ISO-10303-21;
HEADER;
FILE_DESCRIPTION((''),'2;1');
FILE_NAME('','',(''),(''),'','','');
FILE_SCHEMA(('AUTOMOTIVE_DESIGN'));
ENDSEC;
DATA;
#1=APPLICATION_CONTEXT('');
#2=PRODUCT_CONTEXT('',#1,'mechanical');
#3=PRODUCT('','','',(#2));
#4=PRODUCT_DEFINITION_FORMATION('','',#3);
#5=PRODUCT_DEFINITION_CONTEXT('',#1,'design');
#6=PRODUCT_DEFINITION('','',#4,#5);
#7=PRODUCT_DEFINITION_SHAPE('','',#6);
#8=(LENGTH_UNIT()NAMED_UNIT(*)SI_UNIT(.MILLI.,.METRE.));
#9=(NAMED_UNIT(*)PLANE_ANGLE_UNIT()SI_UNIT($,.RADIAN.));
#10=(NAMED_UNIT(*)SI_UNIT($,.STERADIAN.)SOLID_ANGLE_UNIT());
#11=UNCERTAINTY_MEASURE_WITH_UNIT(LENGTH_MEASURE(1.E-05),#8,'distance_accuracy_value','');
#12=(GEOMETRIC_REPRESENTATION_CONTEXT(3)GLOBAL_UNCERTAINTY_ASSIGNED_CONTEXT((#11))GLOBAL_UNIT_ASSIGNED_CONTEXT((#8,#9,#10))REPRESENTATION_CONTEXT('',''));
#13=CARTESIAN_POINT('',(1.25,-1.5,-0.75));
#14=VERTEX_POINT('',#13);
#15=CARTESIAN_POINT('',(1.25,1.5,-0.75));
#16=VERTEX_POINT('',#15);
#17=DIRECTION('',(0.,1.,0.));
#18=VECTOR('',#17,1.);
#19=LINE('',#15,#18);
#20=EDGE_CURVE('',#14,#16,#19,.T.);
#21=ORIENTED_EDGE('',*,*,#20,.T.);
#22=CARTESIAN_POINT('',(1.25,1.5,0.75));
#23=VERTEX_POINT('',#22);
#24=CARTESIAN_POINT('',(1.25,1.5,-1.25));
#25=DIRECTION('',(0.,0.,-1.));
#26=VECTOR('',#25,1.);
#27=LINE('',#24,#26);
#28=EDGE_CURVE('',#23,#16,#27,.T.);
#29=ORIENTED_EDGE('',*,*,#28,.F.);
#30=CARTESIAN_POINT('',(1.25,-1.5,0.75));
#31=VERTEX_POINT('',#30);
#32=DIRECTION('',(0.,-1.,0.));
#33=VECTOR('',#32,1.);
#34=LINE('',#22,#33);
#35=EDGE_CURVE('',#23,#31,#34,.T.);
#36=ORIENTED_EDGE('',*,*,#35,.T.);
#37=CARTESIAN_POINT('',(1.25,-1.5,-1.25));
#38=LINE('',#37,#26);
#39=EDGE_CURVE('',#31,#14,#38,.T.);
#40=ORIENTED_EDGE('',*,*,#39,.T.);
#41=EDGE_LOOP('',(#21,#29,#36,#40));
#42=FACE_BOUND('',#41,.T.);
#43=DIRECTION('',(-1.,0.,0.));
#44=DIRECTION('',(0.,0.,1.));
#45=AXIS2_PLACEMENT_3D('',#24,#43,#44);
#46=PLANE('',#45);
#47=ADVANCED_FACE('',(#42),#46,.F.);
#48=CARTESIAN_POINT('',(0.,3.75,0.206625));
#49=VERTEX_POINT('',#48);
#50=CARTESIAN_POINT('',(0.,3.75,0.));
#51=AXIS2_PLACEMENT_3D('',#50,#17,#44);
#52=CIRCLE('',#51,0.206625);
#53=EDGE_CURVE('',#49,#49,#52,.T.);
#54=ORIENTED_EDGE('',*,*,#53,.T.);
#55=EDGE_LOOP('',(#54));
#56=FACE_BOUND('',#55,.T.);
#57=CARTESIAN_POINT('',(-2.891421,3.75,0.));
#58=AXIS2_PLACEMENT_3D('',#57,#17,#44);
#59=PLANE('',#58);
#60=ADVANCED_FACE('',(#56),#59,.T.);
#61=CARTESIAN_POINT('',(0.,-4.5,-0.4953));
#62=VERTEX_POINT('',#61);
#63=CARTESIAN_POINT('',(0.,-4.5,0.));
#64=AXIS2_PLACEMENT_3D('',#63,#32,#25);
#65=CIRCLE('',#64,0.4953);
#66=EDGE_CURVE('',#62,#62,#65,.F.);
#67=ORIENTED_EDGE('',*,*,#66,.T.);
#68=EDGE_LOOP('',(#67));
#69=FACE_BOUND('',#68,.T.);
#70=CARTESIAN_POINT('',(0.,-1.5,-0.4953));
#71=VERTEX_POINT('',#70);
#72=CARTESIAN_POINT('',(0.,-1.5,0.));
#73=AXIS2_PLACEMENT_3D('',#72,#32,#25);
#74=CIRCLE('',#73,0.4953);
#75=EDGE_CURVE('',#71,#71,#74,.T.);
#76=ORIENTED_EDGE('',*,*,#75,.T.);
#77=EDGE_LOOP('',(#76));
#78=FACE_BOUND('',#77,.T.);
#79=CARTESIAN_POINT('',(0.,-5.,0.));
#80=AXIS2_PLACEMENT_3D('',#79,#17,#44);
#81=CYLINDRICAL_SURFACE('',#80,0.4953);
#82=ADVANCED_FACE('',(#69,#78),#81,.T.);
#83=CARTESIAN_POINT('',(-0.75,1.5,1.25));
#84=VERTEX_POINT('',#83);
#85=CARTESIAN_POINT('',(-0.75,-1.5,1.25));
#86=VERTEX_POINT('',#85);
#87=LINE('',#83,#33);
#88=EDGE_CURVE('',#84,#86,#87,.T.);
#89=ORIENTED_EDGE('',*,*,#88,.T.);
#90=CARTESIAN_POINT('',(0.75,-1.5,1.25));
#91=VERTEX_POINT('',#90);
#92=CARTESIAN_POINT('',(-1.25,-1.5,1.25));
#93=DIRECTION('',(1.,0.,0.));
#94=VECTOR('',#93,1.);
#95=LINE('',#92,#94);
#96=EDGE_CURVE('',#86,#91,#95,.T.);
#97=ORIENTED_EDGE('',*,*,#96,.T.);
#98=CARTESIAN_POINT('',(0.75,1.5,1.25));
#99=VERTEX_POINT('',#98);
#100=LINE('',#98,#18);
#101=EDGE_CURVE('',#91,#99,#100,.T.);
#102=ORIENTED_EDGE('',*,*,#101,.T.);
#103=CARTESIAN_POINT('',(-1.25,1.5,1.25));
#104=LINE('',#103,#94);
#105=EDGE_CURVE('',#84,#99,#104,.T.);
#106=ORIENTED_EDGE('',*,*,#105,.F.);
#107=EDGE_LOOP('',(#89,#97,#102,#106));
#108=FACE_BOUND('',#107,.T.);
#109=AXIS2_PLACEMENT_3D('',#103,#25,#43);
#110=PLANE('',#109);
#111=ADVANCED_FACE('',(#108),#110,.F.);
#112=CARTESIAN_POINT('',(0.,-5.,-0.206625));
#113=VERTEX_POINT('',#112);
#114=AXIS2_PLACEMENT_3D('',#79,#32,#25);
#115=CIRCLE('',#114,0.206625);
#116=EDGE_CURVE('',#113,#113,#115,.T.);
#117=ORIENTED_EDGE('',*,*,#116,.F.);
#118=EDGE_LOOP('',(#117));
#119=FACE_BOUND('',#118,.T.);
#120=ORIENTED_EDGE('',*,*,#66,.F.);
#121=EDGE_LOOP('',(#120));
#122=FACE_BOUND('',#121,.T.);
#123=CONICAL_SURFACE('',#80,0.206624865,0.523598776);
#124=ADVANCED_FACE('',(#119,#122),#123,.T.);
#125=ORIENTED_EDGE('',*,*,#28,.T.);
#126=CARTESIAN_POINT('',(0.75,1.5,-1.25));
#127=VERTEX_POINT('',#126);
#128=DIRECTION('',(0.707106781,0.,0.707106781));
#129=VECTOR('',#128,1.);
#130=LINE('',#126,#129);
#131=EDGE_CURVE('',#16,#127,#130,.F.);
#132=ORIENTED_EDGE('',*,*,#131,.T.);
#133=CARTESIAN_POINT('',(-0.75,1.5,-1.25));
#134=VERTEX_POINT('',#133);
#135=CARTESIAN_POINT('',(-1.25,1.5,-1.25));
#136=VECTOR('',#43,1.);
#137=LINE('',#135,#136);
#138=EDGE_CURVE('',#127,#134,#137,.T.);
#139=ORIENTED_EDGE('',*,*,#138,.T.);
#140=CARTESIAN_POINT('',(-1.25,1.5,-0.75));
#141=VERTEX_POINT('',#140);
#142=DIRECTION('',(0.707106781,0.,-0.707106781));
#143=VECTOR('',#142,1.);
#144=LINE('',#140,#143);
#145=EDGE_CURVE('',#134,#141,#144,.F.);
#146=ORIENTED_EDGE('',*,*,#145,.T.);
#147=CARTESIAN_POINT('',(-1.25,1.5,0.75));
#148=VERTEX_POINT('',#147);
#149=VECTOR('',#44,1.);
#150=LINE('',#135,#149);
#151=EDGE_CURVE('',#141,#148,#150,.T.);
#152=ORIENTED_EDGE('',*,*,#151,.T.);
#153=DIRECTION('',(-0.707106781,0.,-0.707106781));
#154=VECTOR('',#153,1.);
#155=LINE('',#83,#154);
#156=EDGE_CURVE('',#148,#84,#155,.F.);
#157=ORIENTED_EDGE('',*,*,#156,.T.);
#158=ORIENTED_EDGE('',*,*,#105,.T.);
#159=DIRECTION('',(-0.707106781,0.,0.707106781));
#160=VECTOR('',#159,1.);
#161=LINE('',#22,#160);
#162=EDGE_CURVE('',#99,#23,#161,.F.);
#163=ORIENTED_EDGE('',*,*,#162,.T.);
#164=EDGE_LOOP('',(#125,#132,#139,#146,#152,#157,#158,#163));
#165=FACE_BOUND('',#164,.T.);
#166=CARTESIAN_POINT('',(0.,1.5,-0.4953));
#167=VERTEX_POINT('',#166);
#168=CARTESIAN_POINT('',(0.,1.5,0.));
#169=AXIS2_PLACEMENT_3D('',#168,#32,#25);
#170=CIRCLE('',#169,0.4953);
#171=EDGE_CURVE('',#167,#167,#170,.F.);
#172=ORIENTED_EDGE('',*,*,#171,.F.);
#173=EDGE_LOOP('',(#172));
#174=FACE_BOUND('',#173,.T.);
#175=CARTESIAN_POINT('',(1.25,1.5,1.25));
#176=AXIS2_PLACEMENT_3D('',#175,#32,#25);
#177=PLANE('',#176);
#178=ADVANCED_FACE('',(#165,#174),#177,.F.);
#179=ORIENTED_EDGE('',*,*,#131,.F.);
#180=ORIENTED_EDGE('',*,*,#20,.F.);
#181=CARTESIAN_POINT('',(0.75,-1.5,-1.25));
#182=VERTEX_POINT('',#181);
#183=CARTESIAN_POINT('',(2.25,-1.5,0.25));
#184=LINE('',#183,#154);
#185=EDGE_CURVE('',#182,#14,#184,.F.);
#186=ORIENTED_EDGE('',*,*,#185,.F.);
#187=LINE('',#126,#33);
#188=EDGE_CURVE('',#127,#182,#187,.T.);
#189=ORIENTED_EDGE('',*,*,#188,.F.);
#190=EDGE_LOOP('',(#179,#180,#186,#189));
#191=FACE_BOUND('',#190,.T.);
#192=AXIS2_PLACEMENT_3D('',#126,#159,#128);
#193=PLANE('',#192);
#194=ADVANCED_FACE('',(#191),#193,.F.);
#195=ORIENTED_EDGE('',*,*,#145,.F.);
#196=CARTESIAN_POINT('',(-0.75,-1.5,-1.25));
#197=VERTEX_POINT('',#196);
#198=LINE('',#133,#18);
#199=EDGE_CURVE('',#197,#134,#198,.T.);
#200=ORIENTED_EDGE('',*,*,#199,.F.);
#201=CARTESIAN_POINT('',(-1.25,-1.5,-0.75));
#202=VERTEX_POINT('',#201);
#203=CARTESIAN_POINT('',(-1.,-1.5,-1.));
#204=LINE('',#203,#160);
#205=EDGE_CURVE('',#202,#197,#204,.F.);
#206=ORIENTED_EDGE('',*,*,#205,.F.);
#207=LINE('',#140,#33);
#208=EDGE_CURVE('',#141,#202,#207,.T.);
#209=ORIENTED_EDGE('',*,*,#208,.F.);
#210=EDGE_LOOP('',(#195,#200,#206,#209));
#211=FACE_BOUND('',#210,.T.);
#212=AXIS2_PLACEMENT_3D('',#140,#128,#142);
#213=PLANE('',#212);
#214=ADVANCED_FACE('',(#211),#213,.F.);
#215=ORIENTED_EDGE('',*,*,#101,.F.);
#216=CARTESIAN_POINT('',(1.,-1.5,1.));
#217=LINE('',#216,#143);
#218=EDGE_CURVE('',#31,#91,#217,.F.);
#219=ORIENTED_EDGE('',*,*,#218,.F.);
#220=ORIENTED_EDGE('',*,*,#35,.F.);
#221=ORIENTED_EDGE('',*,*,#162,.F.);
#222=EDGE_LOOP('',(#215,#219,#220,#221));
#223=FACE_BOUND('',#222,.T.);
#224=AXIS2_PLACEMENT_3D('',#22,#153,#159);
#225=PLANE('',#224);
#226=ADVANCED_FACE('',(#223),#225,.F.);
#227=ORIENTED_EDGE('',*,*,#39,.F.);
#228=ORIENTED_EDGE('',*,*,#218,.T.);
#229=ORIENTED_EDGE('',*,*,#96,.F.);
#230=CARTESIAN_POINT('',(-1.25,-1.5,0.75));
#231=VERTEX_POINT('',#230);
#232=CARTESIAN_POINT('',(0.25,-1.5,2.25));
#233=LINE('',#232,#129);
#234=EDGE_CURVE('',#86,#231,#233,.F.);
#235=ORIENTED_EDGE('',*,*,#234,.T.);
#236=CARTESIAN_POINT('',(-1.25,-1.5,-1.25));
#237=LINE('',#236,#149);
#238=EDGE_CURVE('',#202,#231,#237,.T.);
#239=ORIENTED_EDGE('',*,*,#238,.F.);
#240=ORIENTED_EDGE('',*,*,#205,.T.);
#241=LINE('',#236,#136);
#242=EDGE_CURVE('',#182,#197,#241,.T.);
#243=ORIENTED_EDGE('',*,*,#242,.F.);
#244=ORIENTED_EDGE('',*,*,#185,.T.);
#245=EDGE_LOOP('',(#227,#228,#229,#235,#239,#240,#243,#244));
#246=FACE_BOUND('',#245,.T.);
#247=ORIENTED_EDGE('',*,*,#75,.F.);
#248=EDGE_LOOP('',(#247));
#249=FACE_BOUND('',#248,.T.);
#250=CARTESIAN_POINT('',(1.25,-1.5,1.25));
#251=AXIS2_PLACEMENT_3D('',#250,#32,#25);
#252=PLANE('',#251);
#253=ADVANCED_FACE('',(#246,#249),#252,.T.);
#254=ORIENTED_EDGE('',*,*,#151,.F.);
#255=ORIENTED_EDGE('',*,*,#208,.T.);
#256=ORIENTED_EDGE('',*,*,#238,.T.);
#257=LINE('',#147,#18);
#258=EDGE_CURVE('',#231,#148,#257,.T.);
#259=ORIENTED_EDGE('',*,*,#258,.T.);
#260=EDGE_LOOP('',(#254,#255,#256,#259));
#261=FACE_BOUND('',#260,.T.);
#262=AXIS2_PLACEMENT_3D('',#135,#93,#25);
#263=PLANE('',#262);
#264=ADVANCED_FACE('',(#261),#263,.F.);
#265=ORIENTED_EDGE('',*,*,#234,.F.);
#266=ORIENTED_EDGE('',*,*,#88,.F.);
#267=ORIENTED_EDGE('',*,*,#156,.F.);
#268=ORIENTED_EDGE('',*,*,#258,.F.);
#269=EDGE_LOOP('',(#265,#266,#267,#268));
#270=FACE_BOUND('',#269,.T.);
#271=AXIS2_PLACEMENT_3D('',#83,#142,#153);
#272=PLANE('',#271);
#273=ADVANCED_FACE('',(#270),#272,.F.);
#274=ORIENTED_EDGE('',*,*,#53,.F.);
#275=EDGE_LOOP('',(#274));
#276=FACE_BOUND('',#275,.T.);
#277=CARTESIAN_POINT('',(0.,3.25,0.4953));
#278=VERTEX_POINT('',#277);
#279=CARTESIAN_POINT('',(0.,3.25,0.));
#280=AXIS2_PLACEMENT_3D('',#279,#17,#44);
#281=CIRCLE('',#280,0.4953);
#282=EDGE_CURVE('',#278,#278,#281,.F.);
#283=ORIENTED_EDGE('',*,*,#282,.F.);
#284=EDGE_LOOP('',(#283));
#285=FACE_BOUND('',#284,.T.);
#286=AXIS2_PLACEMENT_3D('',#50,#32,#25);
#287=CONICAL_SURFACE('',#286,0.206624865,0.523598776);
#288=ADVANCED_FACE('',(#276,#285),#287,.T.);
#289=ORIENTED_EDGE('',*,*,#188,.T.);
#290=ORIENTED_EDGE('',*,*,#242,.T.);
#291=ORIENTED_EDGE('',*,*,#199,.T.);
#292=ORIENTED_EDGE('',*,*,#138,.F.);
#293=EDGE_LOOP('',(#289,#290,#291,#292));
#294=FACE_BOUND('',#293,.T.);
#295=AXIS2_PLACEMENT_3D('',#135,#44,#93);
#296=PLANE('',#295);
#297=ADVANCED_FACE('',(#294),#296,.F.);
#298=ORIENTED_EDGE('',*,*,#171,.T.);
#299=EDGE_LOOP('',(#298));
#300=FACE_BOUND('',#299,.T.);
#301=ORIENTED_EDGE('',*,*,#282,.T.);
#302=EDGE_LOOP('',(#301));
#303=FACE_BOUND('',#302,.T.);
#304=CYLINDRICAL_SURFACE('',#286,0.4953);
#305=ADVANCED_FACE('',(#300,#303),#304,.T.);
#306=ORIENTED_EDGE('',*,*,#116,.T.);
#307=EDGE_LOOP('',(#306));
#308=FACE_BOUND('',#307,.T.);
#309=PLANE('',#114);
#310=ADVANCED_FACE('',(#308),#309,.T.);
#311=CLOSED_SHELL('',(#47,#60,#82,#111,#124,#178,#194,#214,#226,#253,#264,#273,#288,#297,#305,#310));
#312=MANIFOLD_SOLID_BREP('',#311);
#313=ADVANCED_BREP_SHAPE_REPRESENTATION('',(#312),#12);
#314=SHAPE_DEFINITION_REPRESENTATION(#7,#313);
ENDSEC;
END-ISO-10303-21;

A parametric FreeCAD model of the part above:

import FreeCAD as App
import Part
import Sketcher


def edges_at(feature, points):
    """Names of the edges that pass closest to the given points."""
    edges = feature.Shape.Edges
    near = lambda p: min(range(len(edges)), key=lambda i: edges[i].distToShape(Part.Vertex(*p))[0])
    return sorted({f"Edge{near(p) + 1}" for p in points})


def add_polygon(sketch, points):
    """Adds a closed chain of lines whose ends are joined by coincident constraints."""
    first, n = sketch.GeometryCount, len(points)
    for a, b in zip(points, points[1:] + points[:1]):
        sketch.addGeometry(Part.LineSegment(App.Vector(*a, 0), App.Vector(*b, 0)), False)
    for i in range(n):
        sketch.addConstraint(Sketcher.Constraint("Coincident", first + i, 2, first + (i + 1) % n, 1))

doc = App.newDocument("Part")
body = doc.addObject("PartDesign::Body", "Body")

sketch1 = body.newObject("Sketcher::SketchObject", "Sketch")
sketch1.AttachmentSupport = (doc.getObject("XZ_Plane"), [""])
sketch1.MapMode = "FlatFace"
add_polygon(sketch1, [(-1.2, -1.2), (-1.2, 1.2), (1.2, 1.2), (1.2, -1.2)])
sketch1.addConstraint([
    Sketcher.Constraint("Vertical", 0),
    Sketcher.Constraint("Horizontal", 1),
    Sketcher.Constraint("Vertical", 2),
    Sketcher.Constraint("Horizontal", 3),
    Sketcher.Constraint("Symmetric", 0, 2, 2, 2, -1, 1),
    Sketcher.Constraint("Equal", 3, 0),
    Sketcher.Constraint("DistanceX", 1, 1, 1, 2, 2.5),
])
pad1 = body.newObject("PartDesign::Pad", "Pad")
pad1.Profile = sketch1
pad1.Length = 3
pad1.Midplane = True

sketch2 = body.newObject("Sketcher::SketchObject", "Sketch001")
sketch2.AttachmentSupport = (doc.getObject("XZ_Plane"), [""])
sketch2.MapMode = "FlatFace"
sketch2.AttachmentOffset = App.Placement(App.Vector(0, 0, -1.5), App.Rotation())
sketch2.addGeometry(Part.Circle(App.Vector(0, 0, 0), App.Vector(0, 0, 1), 0.5), False)
sketch2.addConstraint([
    Sketcher.Constraint("Coincident", 0, 3, -1, 1),
    Sketcher.Constraint("Diameter", 0, 0.9906),
])
pad2 = body.newObject("PartDesign::Pad", "Pad001")
pad2.Profile = sketch2
pad2.Length = 2.25
pad2.Reversed = True
doc.recompute()

chamfer = body.newObject("PartDesign::Chamfer", "Chamfer")
chamfer.Base = (pad2, edges_at(pad2, [(-0.495, 3.75, 0)]))
chamfer.ChamferType = "Two distances"
chamfer.Size = 0.5
chamfer.Size2 = 0.288675
doc.recompute()

chamfer2 = body.newObject("PartDesign::Chamfer", "Chamfer001")
chamfer2.Base = (chamfer, edges_at(chamfer, [
    (-1.25, 0, 1.25),
    (-1.25, 0, -1.25),
    (1.25, 0, -1.25),
    (1.25, 0, 1.25),
]))
chamfer2.Size = 0.5

sketch3 = body.newObject("Sketcher::SketchObject", "Sketch002")
sketch3.AttachmentSupport = (doc.getObject("XZ_Plane"), [""])
sketch3.MapMode = "FlatFace"
sketch3.AttachmentOffset = App.Placement(App.Vector(0, 0, 1.5), App.Rotation())
sketch3.addGeometry(Part.Circle(App.Vector(0, 0, 0), App.Vector(0, 0, 1), 0.5), False)
sketch3.addConstraint([
    Sketcher.Constraint("Coincident", 0, 3, -1, 1),
    Sketcher.Constraint("Diameter", 0, 0.9906),
])
pad3 = body.newObject("PartDesign::Pad", "Pad002")
pad3.Profile = sketch3
pad3.Length = 3.5
doc.recompute()

chamfer3 = body.newObject("PartDesign::Chamfer", "Chamfer002")
chamfer3.Base = (pad3, edges_at(pad3, [(-0.495, -5, 0)]))
chamfer3.ChamferType = "Two distances"
chamfer3.Size = 0.5
chamfer3.Size2 = 0.288675

doc.recompute()
